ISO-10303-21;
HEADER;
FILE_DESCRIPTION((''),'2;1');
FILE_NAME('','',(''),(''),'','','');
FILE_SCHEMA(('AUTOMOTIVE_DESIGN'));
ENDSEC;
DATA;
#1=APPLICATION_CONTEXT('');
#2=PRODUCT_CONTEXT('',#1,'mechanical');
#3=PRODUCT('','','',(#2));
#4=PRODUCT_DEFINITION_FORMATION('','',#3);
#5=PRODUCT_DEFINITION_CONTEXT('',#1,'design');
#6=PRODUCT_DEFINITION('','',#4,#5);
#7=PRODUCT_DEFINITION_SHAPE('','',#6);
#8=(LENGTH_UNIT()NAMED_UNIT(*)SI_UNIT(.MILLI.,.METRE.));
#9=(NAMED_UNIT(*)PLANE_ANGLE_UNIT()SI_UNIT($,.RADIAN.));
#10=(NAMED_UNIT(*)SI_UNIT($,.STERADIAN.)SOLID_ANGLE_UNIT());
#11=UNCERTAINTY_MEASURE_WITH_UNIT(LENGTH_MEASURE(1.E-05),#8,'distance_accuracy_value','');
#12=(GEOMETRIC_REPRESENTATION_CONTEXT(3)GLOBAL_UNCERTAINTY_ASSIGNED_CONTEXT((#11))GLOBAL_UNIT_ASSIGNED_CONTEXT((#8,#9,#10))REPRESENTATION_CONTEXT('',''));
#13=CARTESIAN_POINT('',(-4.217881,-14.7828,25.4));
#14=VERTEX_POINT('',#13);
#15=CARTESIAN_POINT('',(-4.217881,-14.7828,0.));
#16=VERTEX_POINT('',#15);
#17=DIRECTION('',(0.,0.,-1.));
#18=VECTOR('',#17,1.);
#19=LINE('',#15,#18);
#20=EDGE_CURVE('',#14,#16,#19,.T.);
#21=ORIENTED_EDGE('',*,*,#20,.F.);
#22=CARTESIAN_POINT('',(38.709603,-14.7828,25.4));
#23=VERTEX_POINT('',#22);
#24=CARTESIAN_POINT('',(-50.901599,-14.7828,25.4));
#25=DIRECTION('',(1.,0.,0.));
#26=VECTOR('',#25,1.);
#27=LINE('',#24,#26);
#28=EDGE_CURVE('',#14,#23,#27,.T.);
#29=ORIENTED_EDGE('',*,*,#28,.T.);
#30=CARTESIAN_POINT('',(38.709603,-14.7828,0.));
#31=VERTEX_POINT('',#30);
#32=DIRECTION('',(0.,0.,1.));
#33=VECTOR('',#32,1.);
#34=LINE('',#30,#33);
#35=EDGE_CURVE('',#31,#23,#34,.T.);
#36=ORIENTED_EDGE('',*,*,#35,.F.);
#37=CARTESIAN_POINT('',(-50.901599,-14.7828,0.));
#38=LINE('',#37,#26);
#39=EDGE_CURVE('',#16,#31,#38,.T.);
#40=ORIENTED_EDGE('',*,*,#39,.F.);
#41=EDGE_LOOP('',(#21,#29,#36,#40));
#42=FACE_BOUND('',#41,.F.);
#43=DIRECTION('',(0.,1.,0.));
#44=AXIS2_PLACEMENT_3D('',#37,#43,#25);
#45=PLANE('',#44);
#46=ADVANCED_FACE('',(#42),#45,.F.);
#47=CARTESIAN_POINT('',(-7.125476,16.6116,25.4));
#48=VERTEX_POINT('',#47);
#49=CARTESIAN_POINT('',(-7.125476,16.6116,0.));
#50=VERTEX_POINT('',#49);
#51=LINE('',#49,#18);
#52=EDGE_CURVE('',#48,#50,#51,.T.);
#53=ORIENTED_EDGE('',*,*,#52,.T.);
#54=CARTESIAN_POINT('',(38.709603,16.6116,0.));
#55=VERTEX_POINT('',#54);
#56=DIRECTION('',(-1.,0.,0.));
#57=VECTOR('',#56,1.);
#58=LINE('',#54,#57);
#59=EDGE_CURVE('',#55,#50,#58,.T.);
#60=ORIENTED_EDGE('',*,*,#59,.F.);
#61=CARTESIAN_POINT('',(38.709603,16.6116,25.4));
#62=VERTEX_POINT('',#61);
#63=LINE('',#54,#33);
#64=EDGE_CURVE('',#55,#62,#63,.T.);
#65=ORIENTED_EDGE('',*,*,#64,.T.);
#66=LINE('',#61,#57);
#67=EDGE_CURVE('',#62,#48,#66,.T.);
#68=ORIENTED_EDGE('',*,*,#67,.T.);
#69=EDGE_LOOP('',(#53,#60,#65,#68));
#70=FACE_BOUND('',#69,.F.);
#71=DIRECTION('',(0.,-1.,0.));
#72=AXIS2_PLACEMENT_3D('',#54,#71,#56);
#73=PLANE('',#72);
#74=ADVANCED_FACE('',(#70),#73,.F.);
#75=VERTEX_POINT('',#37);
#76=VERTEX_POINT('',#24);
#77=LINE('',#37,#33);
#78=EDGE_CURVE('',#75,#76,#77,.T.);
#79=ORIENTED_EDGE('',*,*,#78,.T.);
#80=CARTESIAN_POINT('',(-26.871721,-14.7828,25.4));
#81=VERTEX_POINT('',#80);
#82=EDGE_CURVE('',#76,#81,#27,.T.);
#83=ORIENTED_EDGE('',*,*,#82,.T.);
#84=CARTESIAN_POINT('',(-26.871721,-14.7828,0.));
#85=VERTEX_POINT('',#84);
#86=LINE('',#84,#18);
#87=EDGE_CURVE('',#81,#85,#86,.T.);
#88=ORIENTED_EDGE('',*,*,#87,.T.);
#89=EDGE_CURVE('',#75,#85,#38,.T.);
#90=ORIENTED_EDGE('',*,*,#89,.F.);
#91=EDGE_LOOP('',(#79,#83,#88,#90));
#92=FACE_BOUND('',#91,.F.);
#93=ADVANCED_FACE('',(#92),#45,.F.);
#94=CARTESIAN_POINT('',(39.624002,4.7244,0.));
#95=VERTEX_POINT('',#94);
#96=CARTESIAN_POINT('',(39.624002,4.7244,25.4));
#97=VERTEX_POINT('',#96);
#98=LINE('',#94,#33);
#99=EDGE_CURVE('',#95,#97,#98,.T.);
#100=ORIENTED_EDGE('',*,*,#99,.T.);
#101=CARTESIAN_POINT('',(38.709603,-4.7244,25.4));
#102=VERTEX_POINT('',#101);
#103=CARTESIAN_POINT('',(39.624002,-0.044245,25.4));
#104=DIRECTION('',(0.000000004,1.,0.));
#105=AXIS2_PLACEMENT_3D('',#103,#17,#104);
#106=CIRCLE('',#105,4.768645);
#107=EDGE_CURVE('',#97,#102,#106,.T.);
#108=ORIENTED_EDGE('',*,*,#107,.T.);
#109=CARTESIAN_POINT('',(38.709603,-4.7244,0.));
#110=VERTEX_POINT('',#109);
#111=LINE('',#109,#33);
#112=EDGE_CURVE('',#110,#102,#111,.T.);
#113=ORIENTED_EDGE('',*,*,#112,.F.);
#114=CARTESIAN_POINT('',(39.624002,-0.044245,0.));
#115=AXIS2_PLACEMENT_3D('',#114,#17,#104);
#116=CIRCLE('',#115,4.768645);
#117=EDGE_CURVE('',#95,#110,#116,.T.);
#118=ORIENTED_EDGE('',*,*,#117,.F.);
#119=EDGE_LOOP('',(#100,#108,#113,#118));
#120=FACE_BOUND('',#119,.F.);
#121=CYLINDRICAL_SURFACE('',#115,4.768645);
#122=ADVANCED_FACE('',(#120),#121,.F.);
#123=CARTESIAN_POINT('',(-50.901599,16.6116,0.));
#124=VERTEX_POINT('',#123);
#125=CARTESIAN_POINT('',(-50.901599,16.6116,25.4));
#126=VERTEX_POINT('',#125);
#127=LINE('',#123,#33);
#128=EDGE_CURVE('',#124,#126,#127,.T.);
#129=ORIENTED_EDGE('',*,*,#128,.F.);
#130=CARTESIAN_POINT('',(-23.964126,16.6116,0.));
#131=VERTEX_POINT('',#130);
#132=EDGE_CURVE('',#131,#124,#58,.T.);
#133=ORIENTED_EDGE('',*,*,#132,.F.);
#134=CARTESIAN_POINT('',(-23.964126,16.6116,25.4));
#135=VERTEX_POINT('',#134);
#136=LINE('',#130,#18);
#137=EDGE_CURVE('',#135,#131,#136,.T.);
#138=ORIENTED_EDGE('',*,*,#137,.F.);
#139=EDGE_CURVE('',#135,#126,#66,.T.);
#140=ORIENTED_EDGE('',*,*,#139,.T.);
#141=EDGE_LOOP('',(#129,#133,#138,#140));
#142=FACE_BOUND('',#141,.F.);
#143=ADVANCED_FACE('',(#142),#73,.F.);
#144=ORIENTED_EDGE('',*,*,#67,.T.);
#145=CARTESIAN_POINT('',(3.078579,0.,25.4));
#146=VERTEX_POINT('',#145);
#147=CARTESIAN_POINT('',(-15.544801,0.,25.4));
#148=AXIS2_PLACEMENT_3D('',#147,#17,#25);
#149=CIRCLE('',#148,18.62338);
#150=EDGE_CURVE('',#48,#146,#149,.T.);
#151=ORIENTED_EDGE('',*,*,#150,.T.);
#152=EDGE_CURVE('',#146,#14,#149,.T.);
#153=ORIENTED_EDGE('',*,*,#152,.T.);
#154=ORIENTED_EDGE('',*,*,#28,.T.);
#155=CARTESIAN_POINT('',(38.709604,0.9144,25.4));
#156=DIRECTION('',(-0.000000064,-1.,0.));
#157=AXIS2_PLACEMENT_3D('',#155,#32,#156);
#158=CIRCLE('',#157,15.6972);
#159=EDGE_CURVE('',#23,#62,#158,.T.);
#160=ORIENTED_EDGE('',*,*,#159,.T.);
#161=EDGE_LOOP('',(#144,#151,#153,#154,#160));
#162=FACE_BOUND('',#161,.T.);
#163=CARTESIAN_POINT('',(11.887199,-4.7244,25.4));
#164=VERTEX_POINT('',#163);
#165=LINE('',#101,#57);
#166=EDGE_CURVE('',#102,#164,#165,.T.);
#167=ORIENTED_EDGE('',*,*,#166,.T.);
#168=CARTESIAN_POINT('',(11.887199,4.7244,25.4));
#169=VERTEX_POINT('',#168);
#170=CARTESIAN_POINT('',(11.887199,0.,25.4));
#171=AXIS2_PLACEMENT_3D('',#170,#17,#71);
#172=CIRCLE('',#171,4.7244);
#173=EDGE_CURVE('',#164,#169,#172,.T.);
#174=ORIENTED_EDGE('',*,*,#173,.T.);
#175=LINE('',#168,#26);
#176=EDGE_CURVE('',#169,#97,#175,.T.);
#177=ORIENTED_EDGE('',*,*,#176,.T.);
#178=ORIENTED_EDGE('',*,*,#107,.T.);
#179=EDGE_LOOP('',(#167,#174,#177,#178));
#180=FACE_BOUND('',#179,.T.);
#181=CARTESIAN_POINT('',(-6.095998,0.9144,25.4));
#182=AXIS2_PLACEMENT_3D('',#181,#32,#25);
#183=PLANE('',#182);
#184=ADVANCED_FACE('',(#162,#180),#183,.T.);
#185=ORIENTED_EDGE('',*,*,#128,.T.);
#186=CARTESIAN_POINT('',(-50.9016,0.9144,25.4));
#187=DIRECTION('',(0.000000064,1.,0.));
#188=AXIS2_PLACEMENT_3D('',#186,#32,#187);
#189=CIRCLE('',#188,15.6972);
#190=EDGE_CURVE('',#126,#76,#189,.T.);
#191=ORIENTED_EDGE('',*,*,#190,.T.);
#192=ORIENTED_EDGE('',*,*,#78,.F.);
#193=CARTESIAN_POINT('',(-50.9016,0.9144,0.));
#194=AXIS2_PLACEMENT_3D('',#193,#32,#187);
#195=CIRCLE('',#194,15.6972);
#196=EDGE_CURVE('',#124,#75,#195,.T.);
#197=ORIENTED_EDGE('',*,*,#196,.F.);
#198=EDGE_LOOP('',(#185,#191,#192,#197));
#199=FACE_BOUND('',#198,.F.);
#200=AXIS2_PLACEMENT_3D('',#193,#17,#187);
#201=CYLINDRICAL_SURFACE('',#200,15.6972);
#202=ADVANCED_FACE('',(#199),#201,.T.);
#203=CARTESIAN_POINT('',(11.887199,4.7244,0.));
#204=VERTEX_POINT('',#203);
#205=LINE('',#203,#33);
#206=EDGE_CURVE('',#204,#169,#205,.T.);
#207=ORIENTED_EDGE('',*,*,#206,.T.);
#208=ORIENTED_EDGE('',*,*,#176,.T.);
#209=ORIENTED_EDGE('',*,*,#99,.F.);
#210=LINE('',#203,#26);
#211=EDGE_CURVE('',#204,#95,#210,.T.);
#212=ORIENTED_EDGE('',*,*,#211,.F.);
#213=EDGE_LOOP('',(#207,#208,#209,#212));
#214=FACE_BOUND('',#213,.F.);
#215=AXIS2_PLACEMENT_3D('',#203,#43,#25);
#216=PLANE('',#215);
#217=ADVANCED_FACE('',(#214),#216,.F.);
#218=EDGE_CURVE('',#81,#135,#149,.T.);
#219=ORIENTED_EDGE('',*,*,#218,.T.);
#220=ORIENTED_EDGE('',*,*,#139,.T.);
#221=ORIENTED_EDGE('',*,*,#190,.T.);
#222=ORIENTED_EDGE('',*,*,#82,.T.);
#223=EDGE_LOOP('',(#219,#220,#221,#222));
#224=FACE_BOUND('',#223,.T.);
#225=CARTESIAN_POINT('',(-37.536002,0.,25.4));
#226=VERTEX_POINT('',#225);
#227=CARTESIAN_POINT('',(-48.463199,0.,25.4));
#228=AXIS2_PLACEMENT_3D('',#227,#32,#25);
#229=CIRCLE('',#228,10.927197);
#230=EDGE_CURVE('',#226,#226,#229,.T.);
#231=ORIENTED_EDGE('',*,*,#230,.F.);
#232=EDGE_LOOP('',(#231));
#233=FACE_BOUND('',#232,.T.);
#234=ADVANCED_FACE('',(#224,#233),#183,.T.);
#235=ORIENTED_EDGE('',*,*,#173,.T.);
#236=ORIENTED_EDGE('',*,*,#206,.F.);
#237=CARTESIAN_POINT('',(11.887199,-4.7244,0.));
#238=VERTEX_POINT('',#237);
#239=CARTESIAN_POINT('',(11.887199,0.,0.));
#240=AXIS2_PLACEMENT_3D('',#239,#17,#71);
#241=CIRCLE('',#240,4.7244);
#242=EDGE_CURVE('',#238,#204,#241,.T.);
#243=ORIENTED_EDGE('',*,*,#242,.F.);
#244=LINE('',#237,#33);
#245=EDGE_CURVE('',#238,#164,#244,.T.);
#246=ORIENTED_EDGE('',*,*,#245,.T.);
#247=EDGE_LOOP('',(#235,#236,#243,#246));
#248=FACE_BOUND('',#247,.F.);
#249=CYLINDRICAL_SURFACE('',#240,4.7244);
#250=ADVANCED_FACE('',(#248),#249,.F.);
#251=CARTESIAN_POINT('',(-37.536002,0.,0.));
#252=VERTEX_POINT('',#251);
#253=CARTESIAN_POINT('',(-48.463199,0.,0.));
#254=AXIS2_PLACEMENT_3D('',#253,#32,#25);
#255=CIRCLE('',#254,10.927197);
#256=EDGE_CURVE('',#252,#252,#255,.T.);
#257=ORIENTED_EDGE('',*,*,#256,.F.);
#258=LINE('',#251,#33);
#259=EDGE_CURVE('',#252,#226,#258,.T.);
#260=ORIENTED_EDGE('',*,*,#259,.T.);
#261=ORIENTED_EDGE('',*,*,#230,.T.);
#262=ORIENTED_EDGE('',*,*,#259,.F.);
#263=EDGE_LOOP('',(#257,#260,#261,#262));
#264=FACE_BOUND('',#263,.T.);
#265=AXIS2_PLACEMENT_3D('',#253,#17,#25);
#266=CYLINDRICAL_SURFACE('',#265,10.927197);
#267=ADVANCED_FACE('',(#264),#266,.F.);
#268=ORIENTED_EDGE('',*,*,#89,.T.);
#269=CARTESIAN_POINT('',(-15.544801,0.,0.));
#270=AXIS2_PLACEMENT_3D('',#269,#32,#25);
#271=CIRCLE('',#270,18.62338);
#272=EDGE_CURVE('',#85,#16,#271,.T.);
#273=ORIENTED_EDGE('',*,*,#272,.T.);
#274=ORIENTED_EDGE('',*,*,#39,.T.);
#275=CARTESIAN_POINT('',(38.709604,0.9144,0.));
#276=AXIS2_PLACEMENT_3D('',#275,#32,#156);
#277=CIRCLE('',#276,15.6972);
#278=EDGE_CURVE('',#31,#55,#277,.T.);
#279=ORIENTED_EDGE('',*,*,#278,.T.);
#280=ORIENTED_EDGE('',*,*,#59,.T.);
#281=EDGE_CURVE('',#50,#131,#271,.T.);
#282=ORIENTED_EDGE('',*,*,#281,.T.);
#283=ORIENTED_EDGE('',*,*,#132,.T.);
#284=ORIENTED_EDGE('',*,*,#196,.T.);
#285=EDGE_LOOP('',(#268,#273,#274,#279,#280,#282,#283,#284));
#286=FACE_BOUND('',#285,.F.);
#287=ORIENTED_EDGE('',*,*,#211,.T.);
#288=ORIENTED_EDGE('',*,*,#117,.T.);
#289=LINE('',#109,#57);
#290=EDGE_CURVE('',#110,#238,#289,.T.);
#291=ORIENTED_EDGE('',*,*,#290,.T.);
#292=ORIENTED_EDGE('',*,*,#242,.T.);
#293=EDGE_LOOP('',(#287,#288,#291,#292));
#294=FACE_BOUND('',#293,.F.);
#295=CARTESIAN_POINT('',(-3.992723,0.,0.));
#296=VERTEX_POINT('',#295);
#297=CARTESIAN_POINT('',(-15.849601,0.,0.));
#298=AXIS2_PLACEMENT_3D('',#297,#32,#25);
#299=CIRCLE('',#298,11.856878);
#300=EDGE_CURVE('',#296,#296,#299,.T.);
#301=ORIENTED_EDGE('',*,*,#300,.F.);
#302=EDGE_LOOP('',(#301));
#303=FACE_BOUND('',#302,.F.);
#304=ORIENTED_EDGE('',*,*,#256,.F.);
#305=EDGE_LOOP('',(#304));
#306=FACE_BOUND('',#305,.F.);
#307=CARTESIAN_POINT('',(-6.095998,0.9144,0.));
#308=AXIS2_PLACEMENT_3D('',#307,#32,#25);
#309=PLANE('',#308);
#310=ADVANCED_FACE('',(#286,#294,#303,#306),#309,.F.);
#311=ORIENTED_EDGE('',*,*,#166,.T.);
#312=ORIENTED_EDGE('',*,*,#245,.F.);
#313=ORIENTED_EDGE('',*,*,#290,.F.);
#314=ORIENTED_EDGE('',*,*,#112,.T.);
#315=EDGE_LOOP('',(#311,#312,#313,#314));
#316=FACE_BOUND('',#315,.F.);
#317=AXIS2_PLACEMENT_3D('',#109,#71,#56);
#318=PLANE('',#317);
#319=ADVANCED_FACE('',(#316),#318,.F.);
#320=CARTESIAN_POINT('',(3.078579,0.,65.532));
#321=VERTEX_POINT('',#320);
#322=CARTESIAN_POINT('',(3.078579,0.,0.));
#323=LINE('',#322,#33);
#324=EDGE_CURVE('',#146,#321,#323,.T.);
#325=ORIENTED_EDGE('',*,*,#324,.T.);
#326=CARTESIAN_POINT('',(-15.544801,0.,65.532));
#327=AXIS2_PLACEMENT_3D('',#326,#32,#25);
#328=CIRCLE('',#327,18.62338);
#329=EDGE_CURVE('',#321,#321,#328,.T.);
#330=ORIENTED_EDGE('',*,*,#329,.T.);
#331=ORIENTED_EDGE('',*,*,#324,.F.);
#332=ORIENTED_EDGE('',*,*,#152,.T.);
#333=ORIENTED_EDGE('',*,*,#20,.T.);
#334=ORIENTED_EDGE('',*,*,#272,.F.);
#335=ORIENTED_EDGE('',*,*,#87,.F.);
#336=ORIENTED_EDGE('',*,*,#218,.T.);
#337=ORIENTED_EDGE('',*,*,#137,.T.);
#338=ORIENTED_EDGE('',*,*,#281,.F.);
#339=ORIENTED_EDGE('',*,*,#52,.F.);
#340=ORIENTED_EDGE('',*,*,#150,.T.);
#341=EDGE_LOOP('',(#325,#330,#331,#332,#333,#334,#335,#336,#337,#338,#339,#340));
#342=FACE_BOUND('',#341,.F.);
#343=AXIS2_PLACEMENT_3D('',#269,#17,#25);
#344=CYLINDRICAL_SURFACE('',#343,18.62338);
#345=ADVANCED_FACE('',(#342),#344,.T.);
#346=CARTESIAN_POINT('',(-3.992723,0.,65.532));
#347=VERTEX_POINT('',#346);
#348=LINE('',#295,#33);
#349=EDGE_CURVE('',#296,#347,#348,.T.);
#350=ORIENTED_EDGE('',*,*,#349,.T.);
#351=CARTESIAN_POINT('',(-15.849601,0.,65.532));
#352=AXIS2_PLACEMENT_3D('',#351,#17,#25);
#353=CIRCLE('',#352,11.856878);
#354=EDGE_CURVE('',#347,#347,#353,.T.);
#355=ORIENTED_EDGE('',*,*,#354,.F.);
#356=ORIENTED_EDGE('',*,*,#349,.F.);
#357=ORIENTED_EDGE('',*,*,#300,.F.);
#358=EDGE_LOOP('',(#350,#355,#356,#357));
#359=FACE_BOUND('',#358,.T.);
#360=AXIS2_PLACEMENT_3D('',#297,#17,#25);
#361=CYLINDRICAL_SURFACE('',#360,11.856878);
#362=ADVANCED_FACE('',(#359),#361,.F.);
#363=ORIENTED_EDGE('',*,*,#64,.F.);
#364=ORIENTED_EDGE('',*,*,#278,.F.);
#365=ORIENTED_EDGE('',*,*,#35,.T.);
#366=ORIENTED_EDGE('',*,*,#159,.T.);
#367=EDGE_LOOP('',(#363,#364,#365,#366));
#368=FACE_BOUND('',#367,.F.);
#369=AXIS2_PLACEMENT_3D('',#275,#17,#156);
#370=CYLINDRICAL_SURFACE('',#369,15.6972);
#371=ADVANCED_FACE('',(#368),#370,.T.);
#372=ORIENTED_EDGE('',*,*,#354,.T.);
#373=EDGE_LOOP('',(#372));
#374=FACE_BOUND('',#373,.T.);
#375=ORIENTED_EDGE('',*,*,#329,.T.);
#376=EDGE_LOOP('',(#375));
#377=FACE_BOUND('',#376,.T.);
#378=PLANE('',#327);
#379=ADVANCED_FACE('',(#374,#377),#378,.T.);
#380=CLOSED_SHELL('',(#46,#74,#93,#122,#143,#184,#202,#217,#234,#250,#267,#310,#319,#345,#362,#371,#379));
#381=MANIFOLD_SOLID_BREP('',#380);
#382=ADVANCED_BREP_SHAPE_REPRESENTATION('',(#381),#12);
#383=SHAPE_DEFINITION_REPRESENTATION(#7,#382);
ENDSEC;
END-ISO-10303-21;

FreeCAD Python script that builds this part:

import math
import FreeCAD as App
import Part
import Sketcher

V = App.Vector
Q = App.Units.Quantity

doc = App.newDocument("Part")
params = doc.addObject("Spreadsheet::Sheet", "Params")
for row, (alias, value) in enumerate([
    ("sketch1_radius", "0.618 in"),
    ("sketch1_radius2", "0.186 in"),
    ("sketch1_width", "3.5280001 in"),
    ("sketch1_width2", "1.0560002 in"),
    ("sketch1_width3", "1.0920001 in"),
    ("pad1_length", "1 in"),
    ("pad2_length", "2.58 in"),
    ("pocket1_length", "4.13 in"),
], start=1):
    params.set(f"A{row}", alias)
    params.set(f"B{row}", "=" + value)
    params.setAlias(f"B{row}", alias)

body = doc.addObject("PartDesign::Body", "Body")

sketch1 = body.newObject("Sketcher::SketchObject", "Sketch")
sketch1.AttachmentSupport = (doc.getObject("XY_Plane"), [""])
sketch1.MapMode = "FlatFace"
sketch1.addGeometry([
    Part.LineSegment(V(-50.9, -14.8, 0), V(38.7, -14.8, 0)),
    Part.ArcOfCircle(Part.Circle(V(38.7, 0.9, 0), V(0, 0, 1), 15.7), math.radians(-90), math.radians(90)),
    Part.LineSegment(V(38.7, 16.6, 0), V(-50.9, 16.6, 0)),
    Part.ArcOfCircle(Part.Circle(V(-50.9, 0.9, 0), V(0, 0, 1), 15.7), math.radians(90), math.radians(270)),
    Part.LineSegment(V(38.7, -4.7, 0), V(11.9, -4.7, 0)),
    Part.ArcOfCircle(Part.Circle(V(11.9, 0, 0), V(0, 0, 1), 4.7), math.radians(90), math.radians(270)),
    Part.LineSegment(V(11.9, 4.7, 0), V(39.6, 4.7, 0)),
    Part.ArcOfCircle(Part.Circle(V(39.6, 0, 0), V(0, 0, 1), 4.8), math.radians(-101), math.radians(90)),
    Part.Circle(V(-48.5, 0, 0), V(0, 0, 1), 10.9),
], False)
sketch1.addConstraint([
    Sketcher.Constraint("Tangent", 0, 2, 1, 1),
    Sketcher.Constraint("Tangent", 1, 2, 2, 1),
    Sketcher.Constraint("Tangent", 2, 2, 3, 1),
    Sketcher.Constraint("Tangent", 3, 2, 0, 1),
    Sketcher.Constraint("Tangent", 4, 2, 5, 2),
    Sketcher.Constraint("Tangent", 5, 1, 6, 1),
    Sketcher.Constraint("Tangent", 6, 2, 7, 2),
    Sketcher.Constraint("Coincident", 7, 1, 4, 1),
    Sketcher.Constraint("Horizontal", 0),
    Sketcher.Constraint("Horizontal", 2),
    Sketcher.Constraint("Horizontal", 4),
    Sketcher.Constraint("Horizontal", 6),
    Sketcher.Constraint("PointOnObject", 5, 3, -1),
    Sketcher.Constraint("PointOnObject", 8, 3, -1),
    Sketcher.Constraint("Vertical", 1, 2, 7, 1),
    Sketcher.Constraint("Radius", 1, Q("0.618 in")),
    Sketcher.Constraint("Radius", 5, Q("0.186 in")),
    Sketcher.Constraint("DistanceX", 0, 1, 0, 2, Q("3.5280001 in")),
    Sketcher.Constraint("DistanceX", 4, 2, 4, 1, Q("1.0560002 in")),
    Sketcher.Constraint("DistanceX", 6, 1, 6, 2, Q("1.0920001 in")),
    Sketcher.Constraint("DistanceX", -1, 1, 7, 3, Q("1.5600001 in")),
    Sketcher.Constraint("DistanceY", 4, 2, 1, 2, Q("0.84 in")),
    Sketcher.Constraint("DistanceX", 8, 3, -1, 1, Q("1.908 in")),
    Sketcher.Constraint("Diameter", 8, Q("21.854394 mm")),
])
sketch1.setExpression("Constraints[15]", "Params.sketch1_radius")
sketch1.setExpression("Constraints[16]", "Params.sketch1_radius2")
sketch1.setExpression("Constraints[17]", "Params.sketch1_width")
sketch1.setExpression("Constraints[18]", "Params.sketch1_width2")
sketch1.setExpression("Constraints[19]", "Params.sketch1_width3")
pad1 = body.newObject("PartDesign::Pad", "Pad")
pad1.Profile = sketch1
pad1.setExpression("Length", "Params.pad1_length")

sketch2 = body.newObject("Sketcher::SketchObject", "Sketch001")
sketch2.AttachmentSupport = (doc.getObject("XY_Plane"), [""])
sketch2.MapMode = "FlatFace"
sketch2.addGeometry(Part.Circle(V(-16, 0, 0), V(0, 0, 1), 19), False)
sketch2.addConstraint([
    Sketcher.Constraint("PointOnObject", 0, 3, -1),
    Sketcher.Constraint("Diameter", 0, Q("37.24676 mm")),
    Sketcher.Constraint("DistanceX", 0, 3, -1, 1, Q("0.612 in")),
])
pad2 = body.newObject("PartDesign::Pad", "Pad001")
pad2.Profile = sketch2
pad2.setExpression("Length", "Params.pad2_length")

sketch3 = body.newObject("Sketcher::SketchObject", "Sketch002")
sketch3.AttachmentSupport = (doc.getObject("XY_Plane"), [""])
sketch3.MapMode = "FlatFace"
sketch3.addGeometry(Part.Circle(V(-16, 0, 0), V(0, 0, 1), 12), False)
sketch3.addConstraint([
    Sketcher.Constraint("PointOnObject", 0, 3, -1),
    Sketcher.Constraint("DistanceX", 0, 3, -1, 1, Q("0.624 in")),
    Sketcher.Constraint("Diameter", 0, Q("23.713756 mm")),
])
pocket1 = body.newObject("PartDesign::Pocket", "Pocket")
pocket1.Profile = sketch3
pocket1.setExpression("Length", "Params.pocket1_length")
pocket1.Reversed = True

doc.recompute()
